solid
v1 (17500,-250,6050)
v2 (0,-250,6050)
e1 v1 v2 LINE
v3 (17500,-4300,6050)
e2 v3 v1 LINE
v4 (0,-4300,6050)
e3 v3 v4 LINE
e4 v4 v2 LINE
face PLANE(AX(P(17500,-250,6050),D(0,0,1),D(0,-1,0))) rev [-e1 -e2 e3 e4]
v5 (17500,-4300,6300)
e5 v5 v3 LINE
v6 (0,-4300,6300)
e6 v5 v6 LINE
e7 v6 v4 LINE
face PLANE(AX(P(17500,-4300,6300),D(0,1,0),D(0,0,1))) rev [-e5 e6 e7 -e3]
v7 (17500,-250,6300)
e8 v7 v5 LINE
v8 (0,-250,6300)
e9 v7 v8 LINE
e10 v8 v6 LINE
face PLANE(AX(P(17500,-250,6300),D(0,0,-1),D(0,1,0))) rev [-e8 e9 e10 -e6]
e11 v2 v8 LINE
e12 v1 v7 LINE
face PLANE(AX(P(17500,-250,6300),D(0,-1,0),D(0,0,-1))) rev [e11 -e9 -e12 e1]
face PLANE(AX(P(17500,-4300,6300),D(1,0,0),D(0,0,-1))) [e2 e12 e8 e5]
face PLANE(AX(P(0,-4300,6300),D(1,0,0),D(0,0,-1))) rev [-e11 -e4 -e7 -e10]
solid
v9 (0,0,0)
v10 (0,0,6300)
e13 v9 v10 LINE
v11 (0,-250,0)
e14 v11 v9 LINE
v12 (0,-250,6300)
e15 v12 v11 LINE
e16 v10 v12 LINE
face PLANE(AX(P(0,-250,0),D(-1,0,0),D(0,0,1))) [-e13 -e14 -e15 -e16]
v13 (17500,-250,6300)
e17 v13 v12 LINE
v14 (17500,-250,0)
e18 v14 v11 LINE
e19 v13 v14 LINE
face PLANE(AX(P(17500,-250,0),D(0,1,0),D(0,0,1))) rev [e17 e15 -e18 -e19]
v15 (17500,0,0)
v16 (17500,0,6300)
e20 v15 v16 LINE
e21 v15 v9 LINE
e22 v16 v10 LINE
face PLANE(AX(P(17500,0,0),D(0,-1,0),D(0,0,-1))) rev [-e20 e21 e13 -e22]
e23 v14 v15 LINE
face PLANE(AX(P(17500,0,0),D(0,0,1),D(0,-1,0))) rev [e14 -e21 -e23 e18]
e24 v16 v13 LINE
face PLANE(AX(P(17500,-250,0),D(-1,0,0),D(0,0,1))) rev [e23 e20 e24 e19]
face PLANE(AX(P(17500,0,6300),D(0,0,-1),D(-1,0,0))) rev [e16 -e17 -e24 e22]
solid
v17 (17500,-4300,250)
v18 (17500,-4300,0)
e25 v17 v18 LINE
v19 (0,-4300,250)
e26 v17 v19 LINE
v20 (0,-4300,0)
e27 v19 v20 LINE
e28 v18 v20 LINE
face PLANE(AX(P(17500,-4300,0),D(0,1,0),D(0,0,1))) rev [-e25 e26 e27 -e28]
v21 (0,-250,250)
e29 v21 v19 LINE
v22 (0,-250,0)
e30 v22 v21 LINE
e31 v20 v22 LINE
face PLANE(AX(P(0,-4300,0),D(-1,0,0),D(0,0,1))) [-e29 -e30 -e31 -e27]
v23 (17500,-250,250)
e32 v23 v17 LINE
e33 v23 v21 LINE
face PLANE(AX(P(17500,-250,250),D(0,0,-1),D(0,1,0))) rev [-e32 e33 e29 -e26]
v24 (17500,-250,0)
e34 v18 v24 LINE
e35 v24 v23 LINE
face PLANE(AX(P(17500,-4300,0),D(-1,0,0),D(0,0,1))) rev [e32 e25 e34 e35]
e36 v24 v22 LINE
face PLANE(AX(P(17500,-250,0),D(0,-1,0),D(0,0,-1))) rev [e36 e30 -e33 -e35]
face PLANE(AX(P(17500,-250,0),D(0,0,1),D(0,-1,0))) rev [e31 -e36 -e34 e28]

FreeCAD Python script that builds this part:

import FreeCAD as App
import Part
import Sketcher
Q = App.Units.Quantity


def add_polygon(sketch, points):
    """Adds a closed chain of lines whose ends are joined by coincident constraints."""
    first, n = sketch.GeometryCount, len(points)
    for a, b in zip(points, points[1:] + points[:1]):
        sketch.addGeometry(Part.LineSegment(App.Vector(*a, 0), App.Vector(*b, 0)), False)
    for i in range(n):
        sketch.addConstraint(Sketcher.Constraint("Coincident", first + i, 2, first + (i + 1) % n, 1))

doc = App.newDocument("Part")
body = doc.addObject("PartDesign::Body", "Body")

# Sketch on YZ plane
sketch1 = body.newObject("Sketcher::SketchObject", "Sketch")
sketch1.AttachmentSupport = (doc.getObject("YZ_Plane"), [""])
sketch1.MapMode = "FlatFace"
add_polygon(sketch1, [(0, 6300), (-250, 6300), (-250, 0), (0, 0)])  # lines 0-3
sketch1.addConstraint([
    Sketcher.Constraint("Horizontal", 0),
    Sketcher.Constraint("Vertical", 1),
    Sketcher.Constraint("Horizontal", 2),
    Sketcher.Constraint("Vertical", 3),
    Sketcher.Constraint("Coincident", 2, 2, -1, 1),
    Sketcher.Constraint("DistanceX", 0, 2, 0, 1, Q("250 mm")),
    Sketcher.Constraint("DistanceY", 1, 2, 1, 1, Q("6300 mm")),
])
pad1 = body.newObject("PartDesign::Pad", "Pad")
pad1.Profile = sketch1
pad1.Length = 17500
body2 = doc.addObject("PartDesign::Body", "Body001")

# Sketch on YZ plane
sketch2 = body2.newObject("Sketcher::SketchObject", "Sketch001")
sketch2.AttachmentSupport = (doc.getObject("YZ_Plane001"), [""])
sketch2.MapMode = "FlatFace"
add_polygon(sketch2, [(-250, 6300), (-4300, 6300), (-4300, 6050), (-250, 6050)])  # lines 0-3
sketch2.addConstraint([
    Sketcher.Constraint("Horizontal", 0),
    Sketcher.Constraint("Vertical", 1),
    Sketcher.Constraint("Horizontal", 2),
    Sketcher.Constraint("Vertical", 3),
    Sketcher.Constraint("DistanceX", 0, 2, 0, 1, Q("4050 mm")),
    Sketcher.Constraint("DistanceY", 1, 2, 1, 1, Q("250 mm")),
    Sketcher.Constraint("DistanceX", 0, 2, -1, 1, Q("4300 mm")),
    Sketcher.Constraint("DistanceY", -1, 1, 0, 2, Q("6300 mm")),
])
pad2 = body2.newObject("PartDesign::Pad", "Pad001")
pad2.Profile = sketch2
pad2.Length = 17500
body3 = doc.addObject("PartDesign::Body", "Body002")

# Sketch on YZ plane
sketch3 = body3.newObject("Sketcher::SketchObject", "Sketch002")
sketch3.AttachmentSupport = (doc.getObject("YZ_Plane002"), [""])
sketch3.MapMode = "FlatFace"
add_polygon(sketch3, [(-250, 250), (-4300, 250), (-4300, 0), (-250, 0)])  # lines 0-3
sketch3.addConstraint([
    Sketcher.Constraint("Horizontal", 0),
    Sketcher.Constraint("Vertical", 1),
    Sketcher.Constraint("Horizontal", 2),
    Sketcher.Constraint("Vertical", 3),
    Sketcher.Constraint("PointOnObject", 1, 2, -1),
    Sketcher.Constraint("DistanceX", 0, 2, 0, 1, Q("4050 mm")),
    Sketcher.Constraint("DistanceY", 1, 2, 1, 1, Q("250 mm")),
    Sketcher.Constraint("DistanceX", 0, 2, -1, 1, Q("4300 mm")),
])
pad3 = body3.newObject("PartDesign::Pad", "Pad002")
pad3.Profile = sketch3
pad3.Length = 17500

doc.recompute()
